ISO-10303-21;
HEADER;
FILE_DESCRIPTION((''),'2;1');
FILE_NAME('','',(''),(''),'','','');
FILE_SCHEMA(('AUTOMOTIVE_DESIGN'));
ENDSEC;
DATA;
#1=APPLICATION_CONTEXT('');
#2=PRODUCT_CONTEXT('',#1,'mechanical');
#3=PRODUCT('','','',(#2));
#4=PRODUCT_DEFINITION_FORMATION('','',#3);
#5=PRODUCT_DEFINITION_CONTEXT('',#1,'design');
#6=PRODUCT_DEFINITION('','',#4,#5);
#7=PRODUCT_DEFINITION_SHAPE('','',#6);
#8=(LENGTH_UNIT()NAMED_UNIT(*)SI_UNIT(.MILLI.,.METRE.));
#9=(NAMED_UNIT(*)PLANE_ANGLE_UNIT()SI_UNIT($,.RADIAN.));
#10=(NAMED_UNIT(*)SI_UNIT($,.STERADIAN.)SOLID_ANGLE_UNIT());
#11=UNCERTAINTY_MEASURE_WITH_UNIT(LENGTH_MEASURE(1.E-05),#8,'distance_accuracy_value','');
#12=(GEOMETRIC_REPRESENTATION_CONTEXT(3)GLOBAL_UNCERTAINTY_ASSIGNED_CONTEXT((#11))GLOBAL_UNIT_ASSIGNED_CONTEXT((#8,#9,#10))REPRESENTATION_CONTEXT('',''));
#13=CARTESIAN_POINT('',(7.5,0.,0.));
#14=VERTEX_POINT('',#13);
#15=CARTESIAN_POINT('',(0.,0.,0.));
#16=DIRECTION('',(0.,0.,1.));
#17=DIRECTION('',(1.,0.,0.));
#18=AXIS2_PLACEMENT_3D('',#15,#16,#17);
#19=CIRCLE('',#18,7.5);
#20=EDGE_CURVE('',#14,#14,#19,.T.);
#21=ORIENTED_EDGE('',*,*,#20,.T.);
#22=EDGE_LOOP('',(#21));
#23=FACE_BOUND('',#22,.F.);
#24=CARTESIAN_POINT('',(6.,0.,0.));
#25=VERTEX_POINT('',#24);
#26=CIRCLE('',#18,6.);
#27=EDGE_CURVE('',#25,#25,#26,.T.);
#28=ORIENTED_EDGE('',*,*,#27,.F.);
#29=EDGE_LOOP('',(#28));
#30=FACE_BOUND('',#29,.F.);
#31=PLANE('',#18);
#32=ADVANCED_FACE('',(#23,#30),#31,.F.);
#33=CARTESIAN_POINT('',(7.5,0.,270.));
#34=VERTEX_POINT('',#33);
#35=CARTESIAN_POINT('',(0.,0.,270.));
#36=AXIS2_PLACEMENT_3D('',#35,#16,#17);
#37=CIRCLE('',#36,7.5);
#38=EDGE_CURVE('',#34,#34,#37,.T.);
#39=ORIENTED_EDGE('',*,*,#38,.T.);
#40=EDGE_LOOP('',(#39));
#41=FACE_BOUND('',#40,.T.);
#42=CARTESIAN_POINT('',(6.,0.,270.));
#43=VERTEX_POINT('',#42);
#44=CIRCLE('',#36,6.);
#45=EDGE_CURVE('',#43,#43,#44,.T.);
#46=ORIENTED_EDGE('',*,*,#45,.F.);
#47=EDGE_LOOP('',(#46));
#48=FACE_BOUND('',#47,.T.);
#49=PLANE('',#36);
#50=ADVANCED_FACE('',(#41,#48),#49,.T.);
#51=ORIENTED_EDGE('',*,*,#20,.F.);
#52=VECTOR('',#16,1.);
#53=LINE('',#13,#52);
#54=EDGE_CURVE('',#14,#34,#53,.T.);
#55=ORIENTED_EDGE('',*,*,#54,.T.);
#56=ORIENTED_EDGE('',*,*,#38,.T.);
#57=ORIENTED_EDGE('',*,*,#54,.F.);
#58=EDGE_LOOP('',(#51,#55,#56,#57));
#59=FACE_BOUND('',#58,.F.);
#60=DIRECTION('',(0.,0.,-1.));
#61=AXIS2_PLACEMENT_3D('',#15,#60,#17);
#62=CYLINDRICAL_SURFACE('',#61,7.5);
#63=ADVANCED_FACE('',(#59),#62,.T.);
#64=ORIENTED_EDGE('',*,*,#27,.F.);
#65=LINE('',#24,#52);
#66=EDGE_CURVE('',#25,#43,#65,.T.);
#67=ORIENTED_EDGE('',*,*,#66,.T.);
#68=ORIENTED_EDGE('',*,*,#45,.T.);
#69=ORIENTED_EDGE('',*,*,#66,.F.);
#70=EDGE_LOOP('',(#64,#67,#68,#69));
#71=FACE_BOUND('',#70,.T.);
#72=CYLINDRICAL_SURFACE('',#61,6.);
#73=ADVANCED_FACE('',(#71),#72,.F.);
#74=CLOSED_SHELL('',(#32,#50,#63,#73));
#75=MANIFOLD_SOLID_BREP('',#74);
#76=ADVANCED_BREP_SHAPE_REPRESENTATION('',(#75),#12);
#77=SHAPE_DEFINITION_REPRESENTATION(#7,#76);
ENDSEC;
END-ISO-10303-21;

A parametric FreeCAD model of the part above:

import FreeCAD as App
import Part
import Sketcher
from FreeCAD import Vector
Q = App.Units.Quantity

doc = App.newDocument("Part")
body = doc.addObject("PartDesign::Body", "Body")

sketch1 = body.newObject("Sketcher::SketchObject", "Sketch")
sketch1.AttachmentSupport = (doc.getObject("XY_Plane"), [""])
sketch1.MapMode = "FlatFace"
sketch1.addGeometry(Part.Circle(Vector(0, 0, 0), Vector(0, 0, 1), 8), False)
sketch1.addGeometry(Part.Circle(Vector(0, 0, 0), Vector(0, 0, 1), 6), False)
sketch1.addConstraint(Sketcher.Constraint("Coincident", 0, 3, -1, 1))
sketch1.addConstraint(Sketcher.Constraint("Coincident", 1, 3, -1, 1))
sketch1.addConstraint(Sketcher.Constraint("Diameter", 0, Q("15 mm")))
sketch1.addConstraint(Sketcher.Constraint("Diameter", 1, Q("12 mm")))
pad1 = body.newObject("PartDesign::Pad", "Pad")
pad1.Profile = sketch1
pad1.Length = 270

doc.recompute()
